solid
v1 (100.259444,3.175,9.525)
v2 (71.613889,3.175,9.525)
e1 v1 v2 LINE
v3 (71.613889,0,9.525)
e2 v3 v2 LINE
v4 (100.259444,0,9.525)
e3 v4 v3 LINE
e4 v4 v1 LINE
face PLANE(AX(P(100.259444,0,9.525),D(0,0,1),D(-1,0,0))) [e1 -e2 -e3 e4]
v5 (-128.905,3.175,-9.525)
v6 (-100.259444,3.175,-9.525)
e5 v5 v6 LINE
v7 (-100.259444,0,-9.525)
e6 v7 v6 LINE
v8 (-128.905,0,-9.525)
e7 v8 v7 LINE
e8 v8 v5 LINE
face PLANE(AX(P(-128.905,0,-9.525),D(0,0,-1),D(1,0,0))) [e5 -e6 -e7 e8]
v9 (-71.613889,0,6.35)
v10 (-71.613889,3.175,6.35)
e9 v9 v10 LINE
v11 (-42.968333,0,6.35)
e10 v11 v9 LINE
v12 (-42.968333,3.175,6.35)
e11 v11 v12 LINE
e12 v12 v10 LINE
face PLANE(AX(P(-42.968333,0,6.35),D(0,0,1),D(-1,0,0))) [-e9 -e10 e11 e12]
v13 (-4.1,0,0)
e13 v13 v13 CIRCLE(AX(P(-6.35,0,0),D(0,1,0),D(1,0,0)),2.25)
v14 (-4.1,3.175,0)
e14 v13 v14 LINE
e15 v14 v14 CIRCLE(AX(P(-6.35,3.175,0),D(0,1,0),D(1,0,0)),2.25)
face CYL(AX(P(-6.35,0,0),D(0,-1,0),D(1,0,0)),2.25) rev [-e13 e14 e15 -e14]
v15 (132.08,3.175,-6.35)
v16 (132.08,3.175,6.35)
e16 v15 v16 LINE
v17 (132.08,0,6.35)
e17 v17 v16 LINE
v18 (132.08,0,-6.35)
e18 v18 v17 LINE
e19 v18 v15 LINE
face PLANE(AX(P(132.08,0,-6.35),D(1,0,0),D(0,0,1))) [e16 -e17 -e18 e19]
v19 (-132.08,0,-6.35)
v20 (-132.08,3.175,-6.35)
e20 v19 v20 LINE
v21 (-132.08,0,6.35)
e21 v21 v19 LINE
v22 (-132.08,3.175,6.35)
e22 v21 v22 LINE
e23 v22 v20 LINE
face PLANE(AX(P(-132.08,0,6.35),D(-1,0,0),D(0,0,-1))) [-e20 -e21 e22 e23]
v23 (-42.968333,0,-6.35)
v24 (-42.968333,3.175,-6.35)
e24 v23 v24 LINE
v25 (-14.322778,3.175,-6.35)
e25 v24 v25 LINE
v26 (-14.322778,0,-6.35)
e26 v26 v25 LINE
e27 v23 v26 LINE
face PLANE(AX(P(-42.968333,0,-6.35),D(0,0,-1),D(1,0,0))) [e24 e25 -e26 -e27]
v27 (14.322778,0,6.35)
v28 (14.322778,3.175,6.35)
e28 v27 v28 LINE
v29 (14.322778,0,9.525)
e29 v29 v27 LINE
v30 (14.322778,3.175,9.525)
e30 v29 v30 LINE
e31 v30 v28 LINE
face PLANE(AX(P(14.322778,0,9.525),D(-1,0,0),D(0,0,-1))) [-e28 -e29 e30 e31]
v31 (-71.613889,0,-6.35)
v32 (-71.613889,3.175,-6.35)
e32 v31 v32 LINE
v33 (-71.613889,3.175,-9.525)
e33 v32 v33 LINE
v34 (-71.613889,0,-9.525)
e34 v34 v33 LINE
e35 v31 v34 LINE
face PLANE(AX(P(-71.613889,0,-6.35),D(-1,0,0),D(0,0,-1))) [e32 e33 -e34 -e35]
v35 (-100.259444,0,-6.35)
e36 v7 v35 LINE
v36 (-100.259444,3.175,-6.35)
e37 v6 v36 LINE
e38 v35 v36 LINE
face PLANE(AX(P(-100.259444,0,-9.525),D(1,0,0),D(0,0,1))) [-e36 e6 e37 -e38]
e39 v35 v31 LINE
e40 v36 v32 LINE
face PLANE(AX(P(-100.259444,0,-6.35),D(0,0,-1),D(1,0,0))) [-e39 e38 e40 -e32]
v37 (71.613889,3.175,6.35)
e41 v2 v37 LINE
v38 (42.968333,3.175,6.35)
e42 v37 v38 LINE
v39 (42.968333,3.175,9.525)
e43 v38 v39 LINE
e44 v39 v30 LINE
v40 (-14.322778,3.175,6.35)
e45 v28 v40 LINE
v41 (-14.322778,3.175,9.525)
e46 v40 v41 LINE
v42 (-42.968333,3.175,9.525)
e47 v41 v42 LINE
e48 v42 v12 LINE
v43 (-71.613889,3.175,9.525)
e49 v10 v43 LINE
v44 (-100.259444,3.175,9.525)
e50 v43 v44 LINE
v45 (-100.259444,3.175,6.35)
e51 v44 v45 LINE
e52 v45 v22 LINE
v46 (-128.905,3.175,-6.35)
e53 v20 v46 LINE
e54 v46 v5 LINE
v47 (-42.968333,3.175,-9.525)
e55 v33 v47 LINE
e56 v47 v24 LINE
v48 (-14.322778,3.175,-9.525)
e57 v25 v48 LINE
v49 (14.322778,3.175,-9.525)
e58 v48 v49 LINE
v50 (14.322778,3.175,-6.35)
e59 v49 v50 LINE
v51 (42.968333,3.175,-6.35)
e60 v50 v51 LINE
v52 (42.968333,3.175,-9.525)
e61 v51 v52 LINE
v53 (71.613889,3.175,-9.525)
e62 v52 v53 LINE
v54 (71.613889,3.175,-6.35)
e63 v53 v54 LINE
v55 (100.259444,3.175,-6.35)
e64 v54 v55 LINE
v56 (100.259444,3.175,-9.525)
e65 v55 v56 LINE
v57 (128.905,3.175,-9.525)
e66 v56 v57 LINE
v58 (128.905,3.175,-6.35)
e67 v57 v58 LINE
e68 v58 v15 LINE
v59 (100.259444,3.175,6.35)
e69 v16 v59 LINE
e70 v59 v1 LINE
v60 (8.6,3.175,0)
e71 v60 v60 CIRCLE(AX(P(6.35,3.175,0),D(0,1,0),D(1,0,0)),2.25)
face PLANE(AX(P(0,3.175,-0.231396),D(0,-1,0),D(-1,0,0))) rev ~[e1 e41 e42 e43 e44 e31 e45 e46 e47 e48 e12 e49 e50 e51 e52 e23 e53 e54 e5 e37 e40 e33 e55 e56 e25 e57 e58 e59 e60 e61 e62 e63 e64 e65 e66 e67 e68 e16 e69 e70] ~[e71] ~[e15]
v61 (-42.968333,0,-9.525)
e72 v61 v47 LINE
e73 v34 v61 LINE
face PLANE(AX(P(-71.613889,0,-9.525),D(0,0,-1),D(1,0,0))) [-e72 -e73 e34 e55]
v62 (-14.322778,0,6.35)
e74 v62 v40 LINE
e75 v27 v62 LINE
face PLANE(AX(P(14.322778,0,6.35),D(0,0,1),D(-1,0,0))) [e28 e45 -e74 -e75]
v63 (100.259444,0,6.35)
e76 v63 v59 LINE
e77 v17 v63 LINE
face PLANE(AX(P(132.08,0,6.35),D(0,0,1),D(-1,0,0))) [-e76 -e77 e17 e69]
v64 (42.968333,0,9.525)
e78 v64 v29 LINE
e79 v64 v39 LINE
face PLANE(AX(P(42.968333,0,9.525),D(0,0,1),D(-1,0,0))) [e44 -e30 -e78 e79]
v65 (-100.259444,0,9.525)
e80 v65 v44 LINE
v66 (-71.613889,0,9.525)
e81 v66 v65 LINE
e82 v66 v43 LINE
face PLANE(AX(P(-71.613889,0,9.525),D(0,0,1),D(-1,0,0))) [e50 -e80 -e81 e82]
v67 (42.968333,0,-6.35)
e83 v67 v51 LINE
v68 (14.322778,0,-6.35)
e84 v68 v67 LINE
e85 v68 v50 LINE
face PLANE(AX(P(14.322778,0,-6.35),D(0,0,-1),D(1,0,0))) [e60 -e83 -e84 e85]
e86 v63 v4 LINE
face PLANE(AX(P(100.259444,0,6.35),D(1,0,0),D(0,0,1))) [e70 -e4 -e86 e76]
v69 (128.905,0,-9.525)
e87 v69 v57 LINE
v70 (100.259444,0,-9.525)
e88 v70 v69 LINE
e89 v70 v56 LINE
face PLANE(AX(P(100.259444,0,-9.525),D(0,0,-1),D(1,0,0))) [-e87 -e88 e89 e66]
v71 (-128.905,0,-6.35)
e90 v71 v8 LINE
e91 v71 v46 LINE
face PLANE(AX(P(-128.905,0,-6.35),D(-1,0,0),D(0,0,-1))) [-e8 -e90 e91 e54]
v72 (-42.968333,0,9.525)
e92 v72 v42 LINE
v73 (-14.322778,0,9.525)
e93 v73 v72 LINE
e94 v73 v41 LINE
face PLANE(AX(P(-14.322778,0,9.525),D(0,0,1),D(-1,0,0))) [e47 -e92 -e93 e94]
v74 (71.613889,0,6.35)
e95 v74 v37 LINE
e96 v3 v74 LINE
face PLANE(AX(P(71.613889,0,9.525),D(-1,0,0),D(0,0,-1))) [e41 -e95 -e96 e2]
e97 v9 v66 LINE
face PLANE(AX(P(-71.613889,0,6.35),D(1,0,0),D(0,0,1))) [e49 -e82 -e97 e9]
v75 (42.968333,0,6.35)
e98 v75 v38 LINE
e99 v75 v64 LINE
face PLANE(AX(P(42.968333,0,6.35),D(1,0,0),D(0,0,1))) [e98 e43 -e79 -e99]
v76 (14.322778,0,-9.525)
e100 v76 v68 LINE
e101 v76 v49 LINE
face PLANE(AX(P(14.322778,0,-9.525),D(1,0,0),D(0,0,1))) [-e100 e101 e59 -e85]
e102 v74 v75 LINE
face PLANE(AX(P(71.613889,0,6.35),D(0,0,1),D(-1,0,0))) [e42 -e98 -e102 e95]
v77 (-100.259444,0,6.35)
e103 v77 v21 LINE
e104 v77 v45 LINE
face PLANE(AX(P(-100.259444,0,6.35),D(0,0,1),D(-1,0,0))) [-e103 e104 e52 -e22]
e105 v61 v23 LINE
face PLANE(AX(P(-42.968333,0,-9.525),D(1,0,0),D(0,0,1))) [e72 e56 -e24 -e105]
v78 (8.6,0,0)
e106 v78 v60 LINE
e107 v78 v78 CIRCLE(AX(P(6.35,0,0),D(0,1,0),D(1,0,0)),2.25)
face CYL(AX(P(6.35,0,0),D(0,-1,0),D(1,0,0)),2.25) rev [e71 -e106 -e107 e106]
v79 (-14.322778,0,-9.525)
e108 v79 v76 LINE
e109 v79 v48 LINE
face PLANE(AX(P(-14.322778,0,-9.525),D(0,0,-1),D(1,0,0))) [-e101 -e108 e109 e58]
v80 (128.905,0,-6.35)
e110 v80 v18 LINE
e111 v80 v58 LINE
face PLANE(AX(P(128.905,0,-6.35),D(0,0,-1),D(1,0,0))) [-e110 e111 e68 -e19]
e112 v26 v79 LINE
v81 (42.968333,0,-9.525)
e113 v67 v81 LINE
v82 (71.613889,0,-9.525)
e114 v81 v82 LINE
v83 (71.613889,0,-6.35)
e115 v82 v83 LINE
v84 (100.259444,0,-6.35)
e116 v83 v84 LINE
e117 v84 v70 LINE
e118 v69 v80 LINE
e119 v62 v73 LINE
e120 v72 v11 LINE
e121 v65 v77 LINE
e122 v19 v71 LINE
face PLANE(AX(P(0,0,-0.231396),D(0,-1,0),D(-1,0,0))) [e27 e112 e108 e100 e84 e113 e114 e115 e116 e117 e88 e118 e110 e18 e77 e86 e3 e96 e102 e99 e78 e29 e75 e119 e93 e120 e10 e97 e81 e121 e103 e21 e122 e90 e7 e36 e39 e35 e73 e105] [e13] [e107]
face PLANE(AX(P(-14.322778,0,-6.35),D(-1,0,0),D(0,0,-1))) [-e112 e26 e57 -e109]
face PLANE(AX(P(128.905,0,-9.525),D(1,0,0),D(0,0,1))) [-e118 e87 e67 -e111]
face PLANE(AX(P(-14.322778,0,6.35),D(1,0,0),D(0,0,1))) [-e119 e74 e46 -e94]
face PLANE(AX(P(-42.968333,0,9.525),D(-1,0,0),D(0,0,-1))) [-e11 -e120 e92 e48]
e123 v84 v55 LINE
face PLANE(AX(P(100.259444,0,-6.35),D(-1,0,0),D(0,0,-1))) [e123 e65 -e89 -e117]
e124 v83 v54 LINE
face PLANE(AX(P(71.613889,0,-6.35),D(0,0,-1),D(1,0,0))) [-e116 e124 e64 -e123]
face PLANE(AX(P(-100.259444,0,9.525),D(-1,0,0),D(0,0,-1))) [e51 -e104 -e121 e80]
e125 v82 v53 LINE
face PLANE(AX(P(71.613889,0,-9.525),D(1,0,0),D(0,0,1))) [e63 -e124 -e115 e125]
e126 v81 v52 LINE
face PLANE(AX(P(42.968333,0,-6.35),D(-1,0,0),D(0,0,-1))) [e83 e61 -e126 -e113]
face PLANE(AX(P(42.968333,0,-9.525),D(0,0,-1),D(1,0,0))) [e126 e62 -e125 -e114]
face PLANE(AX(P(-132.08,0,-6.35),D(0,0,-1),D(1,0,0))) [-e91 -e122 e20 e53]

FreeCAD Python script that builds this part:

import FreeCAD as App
import Part
import Sketcher

V = App.Vector
Q = App.Units.Quantity


def add_polygon(sketch, points):
    """Adds a closed chain of lines whose ends are joined by coincident constraints."""
    first, n = sketch.GeometryCount, len(points)
    for a, b in zip(points, points[1:] + points[:1]):
        sketch.addGeometry(Part.LineSegment(App.Vector(*a, 0), App.Vector(*b, 0)), False)
    for i in range(n):
        sketch.addConstraint(Sketcher.Constraint("Coincident", first + i, 2, first + (i + 1) % n, 1))

doc = App.newDocument("Part")
body = doc.addObject("PartDesign::Body", "Body")

sketch1 = doc.addObject("Sketcher::SketchObject", "Sketch")
body.addObject(sketch1)
sketch1.AttachmentSupport = (doc.XZ_Plane, [""])
sketch1.MapMode = "FlatFace"
add_polygon(sketch1, [(-100.3, -9.5), (-128.9, -9.5), (-128.9, -6.3), (-132.1, -6.3), (-132.1, 6.3), (-100.3, 6.3), (-100.3, 9.5), (-71.6, 9.5), (-71.6, 6.3), (-43, 6.3), (-43, 9.5), (-14.3, 9.5), (-14.3, 6.3), (14.3, 6.3), (14.3, 9.5), (43, 9.5), (43, 6.3), (71.6, 6.3), (71.6, 9.5), (100.3, 9.5), (100.3, 6.3), (132.1, 6.3), (132.1, -6.3), (128.9, -6.3), (128.9, -9.5), (100.3, -9.5), (100.3, -6.3), (71.6, -6.3), (71.6, -9.5), (43, -9.5), (43, -6.3), (14.3, -6.3), (14.3, -9.5), (-14.3, -9.5), (-14.3, -6.3), (-43, -6.3), (-43, -9.5), (-71.6, -9.5), (-71.6, -6.3), (-100.3, -6.3)])
sketch1.addGeometry(Part.Circle(V(6.3, 0, 0), V(0, 0, 1), 2.2), False)
sketch1.addGeometry(Part.Circle(V(-6.3, 0, 0), V(0, 0, 1), 2.2), False)
sketch1.addConstraint(Sketcher.Constraint("Horizontal", 0))
sketch1.addConstraint(Sketcher.Constraint("Vertical", 1))
sketch1.addConstraint(Sketcher.Constraint("Horizontal", 2))
sketch1.addConstraint(Sketcher.Constraint("Vertical", 3))
sketch1.addConstraint(Sketcher.Constraint("Horizontal", 4))
sketch1.addConstraint(Sketcher.Constraint("Vertical", 5))
sketch1.addConstraint(Sketcher.Constraint("Horizontal", 6))
sketch1.addConstraint(Sketcher.Constraint("Vertical", 7))
sketch1.addConstraint(Sketcher.Constraint("Horizontal", 8))
sketch1.addConstraint(Sketcher.Constraint("Vertical", 9))
sketch1.addConstraint(Sketcher.Constraint("Horizontal", 10))
sketch1.addConstraint(Sketcher.Constraint("Vertical", 11))
sketch1.addConstraint(Sketcher.Constraint("Horizontal", 12))
sketch1.addConstraint(Sketcher.Constraint("Vertical", 13))
sketch1.addConstraint(Sketcher.Constraint("Horizontal", 14))
sketch1.addConstraint(Sketcher.Constraint("Vertical", 15))
sketch1.addConstraint(Sketcher.Constraint("Horizontal", 16))
sketch1.addConstraint(Sketcher.Constraint("Vertical", 17))
sketch1.addConstraint(Sketcher.Constraint("Horizontal", 18))
sketch1.addConstraint(Sketcher.Constraint("Vertical", 19))
sketch1.addConstraint(Sketcher.Constraint("Horizontal", 20))
sketch1.addConstraint(Sketcher.Constraint("Vertical", 21))
sketch1.addConstraint(Sketcher.Constraint("Horizontal", 22))
sketch1.addConstraint(Sketcher.Constraint("Vertical", 23))
sketch1.addConstraint(Sketcher.Constraint("Horizontal", 24))
sketch1.addConstraint(Sketcher.Constraint("Vertical", 25))
sketch1.addConstraint(Sketcher.Constraint("Horizontal", 26))
sketch1.addConstraint(Sketcher.Constraint("Vertical", 27))
sketch1.addConstraint(Sketcher.Constraint("Horizontal", 28))
sketch1.addConstraint(Sketcher.Constraint("Vertical", 29))
sketch1.addConstraint(Sketcher.Constraint("Horizontal", 30))
sketch1.addConstraint(Sketcher.Constraint("Vertical", 31))
sketch1.addConstraint(Sketcher.Constraint("Horizontal", 32))
sketch1.addConstraint(Sketcher.Constraint("Vertical", 33))
sketch1.addConstraint(Sketcher.Constraint("Horizontal", 34))
sketch1.addConstraint(Sketcher.Constraint("Vertical", 35))
sketch1.addConstraint(Sketcher.Constraint("Horizontal", 36))
sketch1.addConstraint(Sketcher.Constraint("Vertical", 37))
sketch1.addConstraint(Sketcher.Constraint("Horizontal", 38))
sketch1.addConstraint(Sketcher.Constraint("Vertical", 39))
sketch1.addConstraint(Sketcher.Constraint("Equal", 40, 41))
sketch1.addConstraint(Sketcher.Constraint("Symmetric", 40, 3, 41, 3, -1, 1))
sketch1.addConstraint(Sketcher.Constraint("Symmetric", 2, 2, 20, 2, -1, 1))
sketch1.addConstraint(Sketcher.Constraint("Symmetric", 5, 2, 24, 2, -1, 1))
sketch1.addConstraint(Sketcher.Constraint("Symmetric", 7, 2, 26, 2, -1, 1))
sketch1.addConstraint(Sketcher.Constraint("Symmetric", 9, 2, 28, 2, -1, 1))
sketch1.addConstraint(Sketcher.Constraint("Symmetric", 11, 2, 30, 2, -1, 1))
sketch1.addConstraint(Sketcher.Constraint("Symmetric", 13, 2, 32, 2, -1, 1))
sketch1.addConstraint(Sketcher.Constraint("Symmetric", 15, 2, 34, 2, -1, 1))
sketch1.addConstraint(Sketcher.Constraint("Symmetric", 17, 2, 36, 2, -1, 1))
sketch1.addConstraint(Sketcher.Constraint("Symmetric", 19, 2, 38, 2, -1, 1))
sketch1.addConstraint(Sketcher.Constraint("Symmetric", 10, 2, 13, 2, -2))
sketch1.addConstraint(Sketcher.Constraint("Symmetric", 8, 2, 15, 2, -2))
sketch1.addConstraint(Sketcher.Constraint("Symmetric", 6, 2, 17, 2, -2))
sketch1.addConstraint(Sketcher.Constraint("Symmetric", 4, 2, 19, 2, -2))
sketch1.addConstraint(Sketcher.Constraint("Symmetric", 1, 2, 22, 2, -2))
sketch1.addConstraint(Sketcher.Constraint("PointOnObject", 40, 3, -1))
sketch1.addConstraint(Sketcher.Constraint("Horizontal", 4, 2, 7, 2))
sketch1.addConstraint(Sketcher.Constraint("Horizontal", 6, 2, 9, 2))
sketch1.addConstraint(Sketcher.Constraint("Horizontal", 8, 2, 11, 2))
sketch1.addConstraint(Sketcher.Constraint("Horizontal", 0, 2, 23, 2))
sketch1.addConstraint(Sketcher.Constraint("Equal", 0, 6))
sketch1.addConstraint(Sketcher.Constraint("Equal", 6, 8))
sketch1.addConstraint(Sketcher.Constraint("Equal", 8, 10))
sketch1.addConstraint(Sketcher.Constraint("Equal", 10, 12))
sketch1.addConstraint(Sketcher.Constraint("Equal", 22, 1))
sketch1.addConstraint(Sketcher.Constraint("DistanceY", 3, 1, 3, 2, Q("0.5 in")))
sketch1.addConstraint(Sketcher.Constraint("DistanceX", 2, 2, -1, 1, Q("5.2 in")))
sketch1.addConstraint(Sketcher.Constraint("DistanceX", 41, 3, 40, 3, Q("0.5 in")))
sketch1.addConstraint(Sketcher.Constraint("Diameter", 40, 4.5))
sketch1.addConstraint(Sketcher.Constraint("DistanceX", 2, 2, 2, 1, Q("0.125 in")))
pad1 = doc.addObject("PartDesign::Pad", "Pad")
body.addObject(pad1)
pad1.Profile = sketch1
pad1.Length = Q("0.125 in")
pad1.Reversed = True

doc.recompute()
